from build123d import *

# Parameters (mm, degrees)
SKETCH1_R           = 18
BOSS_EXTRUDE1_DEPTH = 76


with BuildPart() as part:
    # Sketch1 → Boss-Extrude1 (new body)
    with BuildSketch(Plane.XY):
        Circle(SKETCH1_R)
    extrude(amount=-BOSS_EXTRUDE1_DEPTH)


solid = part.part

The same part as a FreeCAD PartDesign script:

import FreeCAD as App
import Part
import Sketcher

V = App.Vector

doc = App.newDocument("Part")
body = doc.addObject("PartDesign::Body", "Body")

sketch1 = doc.addObject("Sketcher::SketchObject", "Sketch")
body.addObject(sketch1)
sketch1.AttachmentSupport = (doc.XY_Plane, [""])
sketch1.MapMode = "FlatFace"
sketch1.addGeometry(Part.Circle(V(0, 0, 0), V(0, 0, 1), 18), False)
sketch1.addConstraint([
    Sketcher.Constraint("Coincident", 0, 3, -1, 1),
    Sketcher.Constraint("Diameter", 0, 36.0),
])
pad1 = doc.addObject("PartDesign::Pad", "Pad")
body.addObject(pad1)
pad1.Profile = sketch1
pad1.Length = 76
pad1.Reversed = True

doc.recompute()
